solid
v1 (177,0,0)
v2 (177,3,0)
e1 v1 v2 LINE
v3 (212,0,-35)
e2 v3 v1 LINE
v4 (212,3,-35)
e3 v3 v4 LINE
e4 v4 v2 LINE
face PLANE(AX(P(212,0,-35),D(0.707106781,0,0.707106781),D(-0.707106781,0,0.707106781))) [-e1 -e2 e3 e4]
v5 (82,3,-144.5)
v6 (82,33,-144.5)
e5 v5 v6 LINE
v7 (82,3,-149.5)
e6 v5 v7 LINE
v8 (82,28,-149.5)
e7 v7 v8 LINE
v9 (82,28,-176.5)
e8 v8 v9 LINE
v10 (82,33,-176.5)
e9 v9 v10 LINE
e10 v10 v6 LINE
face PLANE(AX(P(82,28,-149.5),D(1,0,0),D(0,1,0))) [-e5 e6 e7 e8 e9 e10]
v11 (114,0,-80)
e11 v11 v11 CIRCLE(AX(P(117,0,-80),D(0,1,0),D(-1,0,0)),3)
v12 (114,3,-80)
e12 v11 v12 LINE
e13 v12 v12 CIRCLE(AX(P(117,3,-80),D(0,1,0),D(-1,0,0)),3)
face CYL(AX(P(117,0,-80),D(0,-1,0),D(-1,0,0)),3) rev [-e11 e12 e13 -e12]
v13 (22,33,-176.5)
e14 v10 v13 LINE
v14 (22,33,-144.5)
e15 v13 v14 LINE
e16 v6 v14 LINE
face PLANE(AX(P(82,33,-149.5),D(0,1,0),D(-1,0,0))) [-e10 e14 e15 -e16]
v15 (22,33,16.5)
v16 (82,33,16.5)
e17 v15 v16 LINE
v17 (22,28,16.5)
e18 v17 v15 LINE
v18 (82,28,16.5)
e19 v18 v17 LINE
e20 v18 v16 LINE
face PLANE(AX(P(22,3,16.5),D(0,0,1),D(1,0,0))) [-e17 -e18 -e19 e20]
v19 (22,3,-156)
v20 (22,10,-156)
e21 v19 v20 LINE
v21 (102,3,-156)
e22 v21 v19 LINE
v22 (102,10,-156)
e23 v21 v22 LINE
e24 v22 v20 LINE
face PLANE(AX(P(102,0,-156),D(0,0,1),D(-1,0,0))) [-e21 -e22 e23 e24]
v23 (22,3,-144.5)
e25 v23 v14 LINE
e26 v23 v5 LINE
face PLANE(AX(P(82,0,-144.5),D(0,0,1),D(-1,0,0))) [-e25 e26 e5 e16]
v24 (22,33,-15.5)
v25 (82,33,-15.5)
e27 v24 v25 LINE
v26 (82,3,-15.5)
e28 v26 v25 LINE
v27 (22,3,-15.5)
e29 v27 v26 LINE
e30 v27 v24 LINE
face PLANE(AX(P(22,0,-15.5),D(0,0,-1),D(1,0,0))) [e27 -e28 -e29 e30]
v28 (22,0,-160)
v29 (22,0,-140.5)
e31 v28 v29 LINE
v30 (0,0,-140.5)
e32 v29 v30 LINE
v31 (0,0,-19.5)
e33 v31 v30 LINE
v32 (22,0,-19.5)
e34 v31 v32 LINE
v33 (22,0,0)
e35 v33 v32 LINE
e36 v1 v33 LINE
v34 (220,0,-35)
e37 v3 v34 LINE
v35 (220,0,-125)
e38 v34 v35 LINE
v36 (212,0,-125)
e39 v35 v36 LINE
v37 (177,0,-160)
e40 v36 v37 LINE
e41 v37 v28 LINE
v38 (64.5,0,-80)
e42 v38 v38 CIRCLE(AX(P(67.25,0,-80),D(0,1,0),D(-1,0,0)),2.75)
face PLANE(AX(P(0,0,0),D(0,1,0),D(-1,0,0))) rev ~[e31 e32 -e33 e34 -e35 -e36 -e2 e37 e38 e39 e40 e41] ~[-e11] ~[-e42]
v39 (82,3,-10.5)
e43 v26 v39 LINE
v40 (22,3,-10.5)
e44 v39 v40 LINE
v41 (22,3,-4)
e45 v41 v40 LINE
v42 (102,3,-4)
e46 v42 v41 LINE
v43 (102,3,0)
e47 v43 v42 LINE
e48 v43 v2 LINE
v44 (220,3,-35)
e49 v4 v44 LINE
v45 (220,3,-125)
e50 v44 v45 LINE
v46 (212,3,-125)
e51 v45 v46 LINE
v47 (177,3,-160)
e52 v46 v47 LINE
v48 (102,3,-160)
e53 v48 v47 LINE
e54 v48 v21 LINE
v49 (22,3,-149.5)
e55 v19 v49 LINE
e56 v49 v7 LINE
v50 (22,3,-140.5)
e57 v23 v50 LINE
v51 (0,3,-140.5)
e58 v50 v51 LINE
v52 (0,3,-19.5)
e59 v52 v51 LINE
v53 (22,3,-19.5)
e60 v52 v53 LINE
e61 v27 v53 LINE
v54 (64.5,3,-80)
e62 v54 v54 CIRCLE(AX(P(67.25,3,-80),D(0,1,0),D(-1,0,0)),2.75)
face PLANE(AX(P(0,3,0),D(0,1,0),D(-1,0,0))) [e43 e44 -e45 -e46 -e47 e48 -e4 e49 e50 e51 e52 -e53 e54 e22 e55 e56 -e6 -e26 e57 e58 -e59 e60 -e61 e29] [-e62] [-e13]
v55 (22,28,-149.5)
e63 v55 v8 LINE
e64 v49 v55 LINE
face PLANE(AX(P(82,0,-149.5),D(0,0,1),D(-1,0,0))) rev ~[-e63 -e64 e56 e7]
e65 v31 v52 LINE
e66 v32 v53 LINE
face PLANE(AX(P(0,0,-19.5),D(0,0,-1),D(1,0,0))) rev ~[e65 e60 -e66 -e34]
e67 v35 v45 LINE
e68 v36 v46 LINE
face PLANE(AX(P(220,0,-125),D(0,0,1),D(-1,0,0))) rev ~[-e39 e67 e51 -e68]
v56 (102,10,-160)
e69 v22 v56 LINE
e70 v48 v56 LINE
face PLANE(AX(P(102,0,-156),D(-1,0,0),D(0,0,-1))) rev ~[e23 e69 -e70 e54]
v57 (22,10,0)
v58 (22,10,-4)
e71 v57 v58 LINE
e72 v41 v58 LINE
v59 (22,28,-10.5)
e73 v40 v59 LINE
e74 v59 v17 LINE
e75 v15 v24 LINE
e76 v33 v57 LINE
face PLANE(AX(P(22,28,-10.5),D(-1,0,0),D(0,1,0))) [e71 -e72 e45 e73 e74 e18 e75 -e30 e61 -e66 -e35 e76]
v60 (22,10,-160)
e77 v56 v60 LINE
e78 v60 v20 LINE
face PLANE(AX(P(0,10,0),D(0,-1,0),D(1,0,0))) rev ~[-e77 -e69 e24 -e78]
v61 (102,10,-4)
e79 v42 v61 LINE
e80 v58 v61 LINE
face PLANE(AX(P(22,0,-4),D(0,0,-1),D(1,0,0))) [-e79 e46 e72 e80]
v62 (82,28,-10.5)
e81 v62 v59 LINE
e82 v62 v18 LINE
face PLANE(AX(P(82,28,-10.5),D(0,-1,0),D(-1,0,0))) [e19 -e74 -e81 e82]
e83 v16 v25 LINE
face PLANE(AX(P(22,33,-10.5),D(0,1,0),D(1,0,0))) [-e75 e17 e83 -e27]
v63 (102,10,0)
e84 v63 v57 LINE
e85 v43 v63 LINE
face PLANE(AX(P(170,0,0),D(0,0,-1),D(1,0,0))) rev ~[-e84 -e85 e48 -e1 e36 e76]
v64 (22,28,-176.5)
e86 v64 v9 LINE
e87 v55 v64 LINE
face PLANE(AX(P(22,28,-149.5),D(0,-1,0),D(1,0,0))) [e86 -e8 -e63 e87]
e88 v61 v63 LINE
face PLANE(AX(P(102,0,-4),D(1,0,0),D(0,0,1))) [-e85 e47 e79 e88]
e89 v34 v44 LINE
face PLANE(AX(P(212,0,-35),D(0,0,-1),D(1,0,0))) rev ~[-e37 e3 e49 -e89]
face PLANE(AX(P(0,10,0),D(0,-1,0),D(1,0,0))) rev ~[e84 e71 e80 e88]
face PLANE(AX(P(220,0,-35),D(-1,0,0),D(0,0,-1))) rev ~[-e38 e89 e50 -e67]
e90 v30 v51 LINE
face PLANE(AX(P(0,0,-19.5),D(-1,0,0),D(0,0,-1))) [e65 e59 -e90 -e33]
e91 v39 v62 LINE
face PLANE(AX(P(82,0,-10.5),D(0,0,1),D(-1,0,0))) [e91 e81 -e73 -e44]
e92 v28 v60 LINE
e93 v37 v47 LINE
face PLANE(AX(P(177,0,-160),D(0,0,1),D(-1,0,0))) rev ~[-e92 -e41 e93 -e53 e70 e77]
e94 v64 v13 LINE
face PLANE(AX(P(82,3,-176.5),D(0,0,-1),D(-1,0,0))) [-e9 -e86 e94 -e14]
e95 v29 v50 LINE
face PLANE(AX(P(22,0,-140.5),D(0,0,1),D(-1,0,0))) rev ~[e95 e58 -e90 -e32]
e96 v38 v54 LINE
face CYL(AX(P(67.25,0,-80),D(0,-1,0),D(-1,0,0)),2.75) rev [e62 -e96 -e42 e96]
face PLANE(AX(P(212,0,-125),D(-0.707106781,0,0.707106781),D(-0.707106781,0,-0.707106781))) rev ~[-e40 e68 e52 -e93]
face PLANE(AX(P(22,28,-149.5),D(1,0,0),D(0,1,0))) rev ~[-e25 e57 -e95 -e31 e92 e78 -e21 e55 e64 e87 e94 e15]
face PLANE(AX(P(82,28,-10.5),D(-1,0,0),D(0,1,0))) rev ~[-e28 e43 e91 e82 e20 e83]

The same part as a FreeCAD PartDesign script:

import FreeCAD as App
import Part
import Sketcher

V = App.Vector


def add_polygon(sketch, points):
    """Adds a closed chain of lines whose ends are joined by coincident constraints."""
    first, n = sketch.GeometryCount, len(points)
    for a, b in zip(points, points[1:] + points[:1]):
        sketch.addGeometry(Part.LineSegment(App.Vector(*a, 0), App.Vector(*b, 0)), False)
    for i in range(n):
        sketch.addConstraint(Sketcher.Constraint("Coincident", first + i, 2, first + (i + 1) % n, 1))

doc = App.newDocument("Part")
body = doc.addObject("PartDesign::Body", "Body")

# Sketch on XZ plane
sketch1 = doc.addObject("Sketcher::SketchObject", "Sketch")
body.addObject(sketch1)
sketch1.AttachmentSupport = (doc.XZ_Plane, [""])
sketch1.MapMode = "FlatFace"
add_polygon(sketch1, [(177, -160), (102, -160), (102, -156), (22, -156), (22, -149.5), (82, -149.5), (82, -144.5), (22, -144.5), (22, -140.5), (0, -140.5), (0, -19.5), (22, -19.5), (22, -15.5), (82, -15.5), (82, -10.5), (22, -10.5), (22, -4), (102, -4), (102, 0), (177, 0), (212, -35), (220, -35), (220, -125), (212, -125)])  # lines 0-23
sketch1.addGeometry(Part.Circle(V(117, -80, 0), V(0, 0, 1), 3), False)  # 24
sketch1.addGeometry(Part.Circle(V(67.2, -80, 0), V(0, 0, 1), 2.8), False)  # 25
sketch1.addConstraint([
    Sketcher.Constraint("Horizontal", 0),
    Sketcher.Constraint("Vertical", 1),
    Sketcher.Constraint("Horizontal", 2),
    Sketcher.Constraint("Vertical", 3),
    Sketcher.Constraint("Horizontal", 4),
    Sketcher.Constraint("Vertical", 5),
    Sketcher.Constraint("Horizontal", 6),
    Sketcher.Constraint("Vertical", 7),
    Sketcher.Constraint("Horizontal", 8),
    Sketcher.Constraint("Vertical", 9),
    Sketcher.Constraint("Horizontal", 10),
    Sketcher.Constraint("Vertical", 11),
    Sketcher.Constraint("Horizontal", 12),
    Sketcher.Constraint("Vertical", 13),
    Sketcher.Constraint("Horizontal", 14),
    Sketcher.Constraint("Vertical", 15),
    Sketcher.Constraint("Horizontal", 16),
    Sketcher.Constraint("Vertical", 17),
    Sketcher.Constraint("Horizontal", 18),
    Sketcher.Constraint("Horizontal", 20),
    Sketcher.Constraint("Vertical", 21),
    Sketcher.Constraint("Horizontal", 22),
    Sketcher.Constraint("PointOnObject", 8, 2, -2),
    Sketcher.Constraint("PointOnObject", 17, 2, -1),
    Sketcher.Constraint("Perpendicular", 19, 23),
    Sketcher.Constraint("Horizontal", 24, 3, 25, 3),
    Sketcher.Constraint("Vertical", 3, 2, 6, 2),
    Sketcher.Constraint("Vertical", 7, 2, 10, 2),
    Sketcher.Constraint("Vertical", 5, 2, 12, 2),
    Sketcher.Constraint("Vertical", 11, 2, 14, 2),
    Sketcher.Constraint("Vertical", 1, 2, 16, 2),
    Sketcher.Constraint("Vertical", 19, 2, 22, 2),
    Sketcher.Constraint("Vertical", 18, 2, 23, 2),
    Sketcher.Constraint("Equal", 1, 7),
    Sketcher.Constraint("Equal", 7, 11),
    Sketcher.Constraint("Equal", 5, 13),
    Sketcher.Constraint("Equal", 3, 15),
    Sketcher.Constraint("Equal", 11, 17),
    Sketcher.Constraint("Equal", 19, 23),
    Sketcher.Constraint("Diameter", 24, 6.0),
    Sketcher.Constraint("Diameter", 25, 5.5),
    Sketcher.Constraint("DistanceX", 4, 1, 4, 2, 60.0),
    Sketcher.Constraint("DistanceX", 20, 1, 20, 2, 8.0),
    Sketcher.Constraint("DistanceY", 1, 1, 1, 2, 4.0),
    Sketcher.Constraint("DistanceY", 21, 2, 21, 1, 90.0),
    Sketcher.Constraint("DistanceY", 19, 2, -1, 1, 35.0),
    Sketcher.Constraint("DistanceX", 12, 2, 24, 3, 35.0),
    Sketcher.Constraint("DistanceX", 24, 3, 18, 2, 60.0),
    Sketcher.Constraint("DistanceY", 25, 3, 9, 2, 60.5),
    Sketcher.Constraint("DistanceX", 0, 2, 0, 1, 75.0),
    Sketcher.Constraint("DistanceX", 8, 2, 8, 1, 22.0),
    Sketcher.Constraint("DistanceY", 5, 1, 5, 2, 5.0),
    Sketcher.Constraint("DistanceY", 9, 1, 9, 2, 121.0),
    Sketcher.Constraint("DistanceX", 25, 3, 24, 3, 49.75),
])
pad1 = doc.addObject("PartDesign::Pad", "Pad")
body.addObject(pad1)
pad1.Profile = sketch1
pad1.Length = 3
pad1.Reversed = True

# Sketch on XZ plane
sketch2 = doc.addObject("Sketcher::SketchObject", "Sketch001")
body.addObject(sketch2)
sketch2.AttachmentSupport = (doc.XZ_Plane, [""])
sketch2.MapMode = "FlatFace"
add_polygon(sketch2, [(102, -160), (102, -156), (22, -156), (22, -160)])  # lines 0-3
add_polygon(sketch2, [(22, 0), (22, -4), (102, -4), (102, 0)])  # lines 4-7
sketch2.addConstraint([
    Sketcher.Constraint("Vertical", 0),
    Sketcher.Constraint("Horizontal", 1),
    Sketcher.Constraint("Vertical", 2),
    Sketcher.Constraint("Horizontal", 3),
    Sketcher.Constraint("Vertical", 4),
    Sketcher.Constraint("Horizontal", 5),
    Sketcher.Constraint("Vertical", 6),
    Sketcher.Constraint("Horizontal", 7),
    Sketcher.Constraint("PointOnObject", 6, 2, -1),
    Sketcher.Constraint("Vertical", 2, 2, 4, 2),
    Sketcher.Constraint("Vertical", 3, 2, 5, 2),
    Sketcher.Constraint("Equal", 2, 4),
    Sketcher.Constraint("DistanceX", 1, 2, 1, 1, 80.0),
    Sketcher.Constraint("DistanceY", 0, 1, 0, 2, 4.0),
    Sketcher.Constraint("DistanceX", -1, 1, 0, 2, 102.0),
    Sketcher.Constraint("DistanceY", 0, 2, -1, 1, 156.0),
])
pad2 = doc.addObject("PartDesign::Pad", "Pad001")
body.addObject(pad2)
pad2.Profile = sketch2
pad2.Length = 10
pad2.Reversed = True

# Sketch on XZ plane
sketch3 = doc.addObject("Sketcher::SketchObject", "Sketch002")
body.addObject(sketch3)
sketch3.AttachmentSupport = (doc.XZ_Plane, [""])
sketch3.MapMode = "FlatFace"
add_polygon(sketch3, [(22, -16), (82, -16), (82, -10), (22, -10)])  # lines 0-3
add_polygon(sketch3, [(82, -150), (82, -144), (22, -144), (22, -150)])  # lines 4-7
sketch3.addConstraint([
    Sketcher.Constraint("Horizontal", 0),
    Sketcher.Constraint("Vertical", 1),
    Sketcher.Constraint("Horizontal", 2),
    Sketcher.Constraint("Vertical", 3),
    Sketcher.Constraint("Vertical", 4),
    Sketcher.Constraint("Horizontal", 5),
    Sketcher.Constraint("Vertical", 6),
    Sketcher.Constraint("Horizontal", 7),
    Sketcher.Constraint("Vertical", 1, 2, 4, 2),
    Sketcher.Constraint("Vertical", 3, 2, 5, 2),
    Sketcher.Constraint("Equal", 3, 4),
    Sketcher.Constraint("DistanceX", 0, 1, 0, 2, 60.0),
    Sketcher.Constraint("DistanceY", 1, 1, 1, 2, 5.0),
    Sketcher.Constraint("DistanceX", -1, 1, 0, 2, 82.0),
    Sketcher.Constraint("DistanceY", 4, 2, 0, 2, 129.0),
    Sketcher.Constraint("DistanceY", 0, 2, -1, 1, 15.5),
])
pad3 = doc.addObject("PartDesign::Pad", "Pad002")
body.addObject(pad3)
pad3.Profile = sketch3
pad3.Length = 33
pad3.Reversed = True

# Sketch on XY plane
sketch4 = doc.addObject("Sketcher::SketchObject", "Sketch003")
body.addObject(sketch4)
sketch4.AttachmentSupport = (doc.XY_Plane, [""])
sketch4.MapMode = "FlatFace"
sketch4.AttachmentOffset = App.Placement(V(0, 0, -10.5), App.Rotation())
add_polygon(sketch4, [(22, 33), (22, 28), (82, 28), (82, 33)])  # lines 0-3
sketch4.addConstraint([
    Sketcher.Constraint("Vertical", 0),
    Sketcher.Constraint("Horizontal", 1),
    Sketcher.Constraint("Vertical", 2),
    Sketcher.Constraint("Horizontal", 3),
    Sketcher.Constraint("DistanceY", 0, 2, 0, 1, 5.0),
    Sketcher.Constraint("DistanceX", 1, 1, 1, 2, 60.0),
    Sketcher.Constraint("DistanceX", -1, 1, 0, 2, 22.0),
    Sketcher.Constraint("DistanceY", -1, 1, 0, 2, 28.0),
])
pad4 = doc.addObject("PartDesign::Pad", "Pad003")
body.addObject(pad4)
pad4.Profile = sketch4
pad4.Length = 27

# Sketch on XY plane
sketch5 = doc.addObject("Sketcher::SketchObject", "Sketch004")
body.addObject(sketch5)
sketch5.AttachmentSupport = (doc.XY_Plane, [""])
sketch5.MapMode = "FlatFace"
sketch5.AttachmentOffset = App.Placement(V(0, 0, -149.5), App.Rotation())
add_polygon(sketch5, [(82, 33), (82, 28), (22, 28), (22, 33)])  # lines 0-3
sketch5.addConstraint([
    Sketcher.Constraint("Vertical", 0),
    Sketcher.Constraint("Horizontal", 1),
    Sketcher.Constraint("Vertical", 2),
    Sketcher.Constraint("Horizontal", 3),
    Sketcher.Constraint("DistanceY", 0, 2, 0, 1, 5.0),
    Sketcher.Constraint("DistanceX", 1, 2, 1, 1, 60.0),
    Sketcher.Constraint("DistanceX", -1, 1, 0, 2, 82.0),
    Sketcher.Constraint("DistanceY", -1, 1, 0, 2, 28.0),
])
pad5 = doc.addObject("PartDesign::Pad", "Pad004")
body.addObject(pad5)
pad5.Profile = sketch5
pad5.Length = 27
pad5.Reversed = True

doc.recompute()
